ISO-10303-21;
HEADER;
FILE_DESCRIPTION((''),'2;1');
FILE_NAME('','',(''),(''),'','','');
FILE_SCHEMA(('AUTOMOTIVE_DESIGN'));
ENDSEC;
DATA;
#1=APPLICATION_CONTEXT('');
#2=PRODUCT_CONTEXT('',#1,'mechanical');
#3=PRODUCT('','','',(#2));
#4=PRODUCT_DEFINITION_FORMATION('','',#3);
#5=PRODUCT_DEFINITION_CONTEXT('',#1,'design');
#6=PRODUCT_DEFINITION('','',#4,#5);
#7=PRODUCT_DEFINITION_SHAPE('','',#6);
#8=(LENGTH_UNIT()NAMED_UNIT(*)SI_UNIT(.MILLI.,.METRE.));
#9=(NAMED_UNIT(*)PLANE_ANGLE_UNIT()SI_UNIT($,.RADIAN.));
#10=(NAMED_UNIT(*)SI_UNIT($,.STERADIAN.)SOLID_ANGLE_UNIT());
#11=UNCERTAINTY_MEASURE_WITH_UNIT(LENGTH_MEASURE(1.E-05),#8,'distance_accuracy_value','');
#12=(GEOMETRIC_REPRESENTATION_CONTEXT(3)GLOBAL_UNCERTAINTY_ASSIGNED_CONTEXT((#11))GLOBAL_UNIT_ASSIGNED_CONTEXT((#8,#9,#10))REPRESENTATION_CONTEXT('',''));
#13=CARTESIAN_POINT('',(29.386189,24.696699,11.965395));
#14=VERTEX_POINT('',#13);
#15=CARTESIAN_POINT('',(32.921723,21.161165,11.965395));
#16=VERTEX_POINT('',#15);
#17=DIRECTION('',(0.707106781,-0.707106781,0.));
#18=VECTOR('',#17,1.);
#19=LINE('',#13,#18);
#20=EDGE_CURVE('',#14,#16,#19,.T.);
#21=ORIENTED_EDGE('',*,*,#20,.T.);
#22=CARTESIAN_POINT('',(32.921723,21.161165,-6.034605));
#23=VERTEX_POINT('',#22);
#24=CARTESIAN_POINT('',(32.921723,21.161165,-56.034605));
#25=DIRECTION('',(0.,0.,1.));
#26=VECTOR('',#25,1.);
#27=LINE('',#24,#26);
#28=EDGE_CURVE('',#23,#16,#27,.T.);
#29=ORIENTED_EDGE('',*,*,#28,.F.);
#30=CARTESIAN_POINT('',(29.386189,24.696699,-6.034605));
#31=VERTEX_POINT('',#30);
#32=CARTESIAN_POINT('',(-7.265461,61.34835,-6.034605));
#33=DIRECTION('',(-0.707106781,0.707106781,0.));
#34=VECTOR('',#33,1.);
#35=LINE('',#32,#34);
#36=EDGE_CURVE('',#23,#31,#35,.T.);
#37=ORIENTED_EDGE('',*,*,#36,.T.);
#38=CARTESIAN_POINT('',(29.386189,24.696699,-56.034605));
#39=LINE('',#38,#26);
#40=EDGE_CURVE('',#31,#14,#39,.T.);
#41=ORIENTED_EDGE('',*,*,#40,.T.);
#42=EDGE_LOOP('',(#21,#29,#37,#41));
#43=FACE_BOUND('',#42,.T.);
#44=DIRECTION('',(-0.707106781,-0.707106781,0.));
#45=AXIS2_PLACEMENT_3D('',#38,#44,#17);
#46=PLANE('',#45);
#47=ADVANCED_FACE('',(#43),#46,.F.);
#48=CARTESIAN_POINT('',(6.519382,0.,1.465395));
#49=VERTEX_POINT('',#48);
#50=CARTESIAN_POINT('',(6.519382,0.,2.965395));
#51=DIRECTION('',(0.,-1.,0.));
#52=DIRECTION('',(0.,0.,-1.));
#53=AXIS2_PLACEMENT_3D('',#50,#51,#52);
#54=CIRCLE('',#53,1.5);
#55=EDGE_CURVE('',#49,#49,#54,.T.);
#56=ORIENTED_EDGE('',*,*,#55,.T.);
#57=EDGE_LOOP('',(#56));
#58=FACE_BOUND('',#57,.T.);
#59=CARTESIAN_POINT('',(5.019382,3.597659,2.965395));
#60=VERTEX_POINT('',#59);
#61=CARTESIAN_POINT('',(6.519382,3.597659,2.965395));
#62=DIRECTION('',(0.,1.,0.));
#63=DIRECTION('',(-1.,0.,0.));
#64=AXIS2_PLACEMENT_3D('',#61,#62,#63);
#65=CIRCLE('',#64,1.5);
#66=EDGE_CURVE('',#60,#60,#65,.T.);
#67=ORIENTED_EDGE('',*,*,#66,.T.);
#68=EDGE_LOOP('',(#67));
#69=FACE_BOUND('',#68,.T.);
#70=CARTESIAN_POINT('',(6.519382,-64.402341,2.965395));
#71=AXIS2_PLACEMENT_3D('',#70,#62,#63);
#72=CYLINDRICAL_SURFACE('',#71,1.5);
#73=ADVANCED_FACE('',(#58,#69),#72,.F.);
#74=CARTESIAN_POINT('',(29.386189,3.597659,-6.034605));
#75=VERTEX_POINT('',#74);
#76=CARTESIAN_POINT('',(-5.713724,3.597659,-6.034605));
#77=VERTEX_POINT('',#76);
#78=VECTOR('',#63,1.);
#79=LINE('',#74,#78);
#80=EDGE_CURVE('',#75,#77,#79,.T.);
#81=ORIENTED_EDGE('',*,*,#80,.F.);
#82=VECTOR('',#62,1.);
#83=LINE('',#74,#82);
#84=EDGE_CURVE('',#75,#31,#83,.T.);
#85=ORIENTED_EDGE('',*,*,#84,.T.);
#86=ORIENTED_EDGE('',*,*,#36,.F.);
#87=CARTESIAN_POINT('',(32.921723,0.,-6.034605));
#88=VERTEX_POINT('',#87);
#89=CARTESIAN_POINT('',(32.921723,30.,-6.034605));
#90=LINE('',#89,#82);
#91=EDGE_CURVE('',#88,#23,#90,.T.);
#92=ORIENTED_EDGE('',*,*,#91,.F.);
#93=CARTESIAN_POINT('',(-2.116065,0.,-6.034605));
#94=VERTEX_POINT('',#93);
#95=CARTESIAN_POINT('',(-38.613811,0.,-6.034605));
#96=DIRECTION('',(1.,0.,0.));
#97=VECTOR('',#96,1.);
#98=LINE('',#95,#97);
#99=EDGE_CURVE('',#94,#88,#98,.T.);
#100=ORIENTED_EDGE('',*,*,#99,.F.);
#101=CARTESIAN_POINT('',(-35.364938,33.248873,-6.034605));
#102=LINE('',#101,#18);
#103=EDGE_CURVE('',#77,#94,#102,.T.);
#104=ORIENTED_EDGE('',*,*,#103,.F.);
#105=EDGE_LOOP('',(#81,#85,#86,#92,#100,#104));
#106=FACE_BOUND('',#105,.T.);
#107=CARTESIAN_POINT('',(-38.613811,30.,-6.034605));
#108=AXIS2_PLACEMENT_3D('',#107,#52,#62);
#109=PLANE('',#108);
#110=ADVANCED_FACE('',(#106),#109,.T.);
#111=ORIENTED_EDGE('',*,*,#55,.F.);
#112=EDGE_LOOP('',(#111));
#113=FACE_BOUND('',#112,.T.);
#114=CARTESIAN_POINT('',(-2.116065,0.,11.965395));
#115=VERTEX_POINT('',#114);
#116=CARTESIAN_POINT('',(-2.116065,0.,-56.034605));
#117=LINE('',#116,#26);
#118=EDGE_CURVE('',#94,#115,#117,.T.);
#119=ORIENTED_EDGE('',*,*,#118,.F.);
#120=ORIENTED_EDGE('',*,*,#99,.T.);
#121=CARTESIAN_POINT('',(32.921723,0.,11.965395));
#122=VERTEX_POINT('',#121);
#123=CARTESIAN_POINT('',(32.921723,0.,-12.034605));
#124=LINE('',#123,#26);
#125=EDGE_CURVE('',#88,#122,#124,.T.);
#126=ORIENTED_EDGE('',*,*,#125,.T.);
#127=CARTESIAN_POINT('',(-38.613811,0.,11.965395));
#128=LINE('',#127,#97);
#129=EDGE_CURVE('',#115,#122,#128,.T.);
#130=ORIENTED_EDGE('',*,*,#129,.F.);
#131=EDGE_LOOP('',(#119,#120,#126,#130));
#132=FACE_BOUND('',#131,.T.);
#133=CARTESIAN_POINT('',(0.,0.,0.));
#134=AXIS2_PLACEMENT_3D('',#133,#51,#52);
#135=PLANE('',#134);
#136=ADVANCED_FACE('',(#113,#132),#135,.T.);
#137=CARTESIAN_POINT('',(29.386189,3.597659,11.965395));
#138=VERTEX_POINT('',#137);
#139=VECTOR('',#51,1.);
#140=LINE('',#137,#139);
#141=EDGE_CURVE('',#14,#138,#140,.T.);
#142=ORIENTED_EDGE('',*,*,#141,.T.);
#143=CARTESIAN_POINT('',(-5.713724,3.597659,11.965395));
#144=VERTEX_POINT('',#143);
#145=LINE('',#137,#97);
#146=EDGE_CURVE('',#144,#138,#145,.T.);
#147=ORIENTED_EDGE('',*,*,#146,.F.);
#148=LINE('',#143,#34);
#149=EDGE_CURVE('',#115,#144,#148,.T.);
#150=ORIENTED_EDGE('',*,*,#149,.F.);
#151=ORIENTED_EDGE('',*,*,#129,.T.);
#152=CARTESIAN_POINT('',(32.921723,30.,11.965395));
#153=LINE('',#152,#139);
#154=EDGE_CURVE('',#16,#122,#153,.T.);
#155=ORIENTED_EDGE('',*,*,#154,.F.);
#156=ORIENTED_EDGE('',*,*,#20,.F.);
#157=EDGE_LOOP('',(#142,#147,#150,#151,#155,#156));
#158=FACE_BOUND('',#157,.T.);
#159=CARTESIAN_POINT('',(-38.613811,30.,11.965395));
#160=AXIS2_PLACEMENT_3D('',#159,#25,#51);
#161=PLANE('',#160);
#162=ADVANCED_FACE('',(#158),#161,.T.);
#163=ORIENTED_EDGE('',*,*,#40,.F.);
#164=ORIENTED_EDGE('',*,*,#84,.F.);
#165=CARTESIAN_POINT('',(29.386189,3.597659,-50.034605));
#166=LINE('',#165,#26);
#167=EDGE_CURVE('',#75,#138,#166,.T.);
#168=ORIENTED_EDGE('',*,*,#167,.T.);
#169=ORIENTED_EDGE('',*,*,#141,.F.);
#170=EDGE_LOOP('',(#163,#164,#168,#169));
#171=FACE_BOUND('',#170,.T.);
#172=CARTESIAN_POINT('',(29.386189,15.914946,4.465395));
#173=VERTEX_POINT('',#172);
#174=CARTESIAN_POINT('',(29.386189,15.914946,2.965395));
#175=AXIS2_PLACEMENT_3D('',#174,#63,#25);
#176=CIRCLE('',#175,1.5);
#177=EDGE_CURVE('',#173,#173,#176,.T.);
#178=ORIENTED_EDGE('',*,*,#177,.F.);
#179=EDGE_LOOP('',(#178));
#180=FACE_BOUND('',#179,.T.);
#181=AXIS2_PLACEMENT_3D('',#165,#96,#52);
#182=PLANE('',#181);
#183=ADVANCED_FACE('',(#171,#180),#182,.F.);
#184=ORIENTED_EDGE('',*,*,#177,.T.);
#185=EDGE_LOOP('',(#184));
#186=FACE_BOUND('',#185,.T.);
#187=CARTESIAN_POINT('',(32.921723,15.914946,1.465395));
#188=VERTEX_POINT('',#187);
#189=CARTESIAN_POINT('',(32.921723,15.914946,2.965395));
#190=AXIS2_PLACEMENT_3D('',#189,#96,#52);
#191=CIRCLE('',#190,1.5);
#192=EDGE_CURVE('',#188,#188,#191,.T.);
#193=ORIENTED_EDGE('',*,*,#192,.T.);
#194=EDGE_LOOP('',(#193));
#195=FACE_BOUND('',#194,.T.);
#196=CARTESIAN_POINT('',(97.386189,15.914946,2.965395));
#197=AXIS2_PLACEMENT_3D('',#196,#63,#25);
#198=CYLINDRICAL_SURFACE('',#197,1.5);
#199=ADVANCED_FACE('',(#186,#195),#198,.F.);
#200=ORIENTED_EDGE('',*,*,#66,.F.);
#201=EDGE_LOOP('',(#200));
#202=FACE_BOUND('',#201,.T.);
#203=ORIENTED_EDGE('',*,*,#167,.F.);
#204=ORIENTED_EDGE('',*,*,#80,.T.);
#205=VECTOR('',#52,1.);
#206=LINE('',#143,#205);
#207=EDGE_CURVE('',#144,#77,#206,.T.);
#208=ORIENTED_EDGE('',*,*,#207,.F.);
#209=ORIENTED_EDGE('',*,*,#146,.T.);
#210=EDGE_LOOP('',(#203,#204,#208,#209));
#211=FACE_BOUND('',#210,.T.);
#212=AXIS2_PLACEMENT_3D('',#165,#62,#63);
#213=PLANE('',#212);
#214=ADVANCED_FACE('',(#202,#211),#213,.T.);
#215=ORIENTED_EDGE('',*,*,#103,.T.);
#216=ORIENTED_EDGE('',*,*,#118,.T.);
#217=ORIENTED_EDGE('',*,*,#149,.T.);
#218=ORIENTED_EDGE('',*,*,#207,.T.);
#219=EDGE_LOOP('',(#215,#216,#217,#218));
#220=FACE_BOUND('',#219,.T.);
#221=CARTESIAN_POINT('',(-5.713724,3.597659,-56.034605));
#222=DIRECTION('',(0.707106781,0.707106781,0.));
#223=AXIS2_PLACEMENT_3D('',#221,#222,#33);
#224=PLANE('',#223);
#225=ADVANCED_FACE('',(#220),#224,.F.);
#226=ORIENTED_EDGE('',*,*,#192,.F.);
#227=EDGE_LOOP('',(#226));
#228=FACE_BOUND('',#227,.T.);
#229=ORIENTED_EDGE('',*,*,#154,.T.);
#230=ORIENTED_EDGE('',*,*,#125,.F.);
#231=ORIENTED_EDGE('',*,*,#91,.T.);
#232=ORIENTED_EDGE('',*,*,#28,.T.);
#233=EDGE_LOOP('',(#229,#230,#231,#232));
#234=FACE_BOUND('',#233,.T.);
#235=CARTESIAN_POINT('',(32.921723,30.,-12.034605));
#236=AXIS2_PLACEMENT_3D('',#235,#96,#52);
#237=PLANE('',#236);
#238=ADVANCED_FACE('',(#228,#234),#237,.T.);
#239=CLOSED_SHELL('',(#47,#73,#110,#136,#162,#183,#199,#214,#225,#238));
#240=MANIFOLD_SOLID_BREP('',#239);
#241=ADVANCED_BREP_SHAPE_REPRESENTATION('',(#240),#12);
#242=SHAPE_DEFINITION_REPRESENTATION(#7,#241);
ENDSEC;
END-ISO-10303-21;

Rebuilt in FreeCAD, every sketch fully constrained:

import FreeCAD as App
import Part
import Sketcher
from FreeCAD import Vector
Q = App.Units.Quantity

doc = App.newDocument("Part")
params = doc.addObject("Spreadsheet::Sheet", "Params")
for row, (alias, value) in enumerate([
    ("sketch1_width", "60 mm"),
    ("sketch1_height", "30 mm"),
    ("pad1_length", "30 mm"),
    ("sketch2_width", "60 mm"),
    ("sketch2_height", "30 mm"),
    ("pocket1_length", "30 mm"),
    ("pocket2_length", "68 mm"),
    ("sketch4_diameter", "3 mm"),
    ("pocket3_length", "68 mm"),
    ("sketch5_width", "30 mm"),
    ("sketch5_height", "6 mm"),
    ("sketch6_diameter", "3 mm"),
    ("pocket5_length", "68 mm"),
    ("sketch7_height", "18 mm"),
    ("pocket6_length", "68 mm"),
    ("pocket7_length", "68 mm"),
    ("sketch9_length", "5 mm"),
    ("pocket8_length", "68 mm"),
    ("sketch10_length", "5 mm"),
    ("pocket9_length", "68 mm"),
    ("sketch11_length", "5 mm"),
    ("pocket10_length", "68 mm"),
], start=1):
    params.set(f"A{row}", alias)
    params.set(f"B{row}", "=" + value)
    params.setAlias(f"B{row}", alias)

body = doc.addObject("PartDesign::Body", "Body")
body.AllowCompound = True

sketch1 = body.newObject("Sketcher::SketchObject", "Sketch")
sketch1.AttachmentSupport = (doc.getObject("XZ_Plane"), [""])
sketch1.MapMode = "FlatFace"
sketch1.addGeometry([
    Part.LineSegment(Vector(-27, -12, 0), Vector(-27, 18, 0)),
    Part.LineSegment(Vector(-27, 18, 0), Vector(33, 18, 0)),
    Part.LineSegment(Vector(33, 18, 0), Vector(33, -12, 0)),
    Part.LineSegment(Vector(33, -12, 0), Vector(-27, -12, 0)),
], False)
sketch1.addConstraint([
    Sketcher.Constraint("Coincident", 0, 2, 1, 1),
    Sketcher.Constraint("Coincident", 1, 2, 2, 1),
    Sketcher.Constraint("Coincident", 2, 2, 3, 1),
    Sketcher.Constraint("Coincident", 3, 2, 0, 1),
    Sketcher.Constraint("Vertical", 0),
    Sketcher.Constraint("Horizontal", 1),
    Sketcher.Constraint("Vertical", 2),
    Sketcher.Constraint("Horizontal", 3),
    Sketcher.Constraint("DistanceX", 1, 1, 1, 2, Q("60 mm")),
    Sketcher.Constraint("DistanceY", 0, 1, 0, 2, Q("30 mm")),
    Sketcher.Constraint("DistanceX", 0, 2, -1, 1, Q("27.078277 mm")),
    Sketcher.Constraint("DistanceY", -1, 1, 0, 2, Q("17.965395 mm")),
])
sketch1.setExpression("Constraints[8]", "Params.sketch1_width")
sketch1.setExpression("Constraints[9]", "Params.sketch1_height")
pad1 = body.newObject("PartDesign::Pad", "Pad")
pad1.Profile = sketch1
pad1.setExpression("Length", "Params.pad1_length")
pad1.Reversed = True

sketch2 = body.newObject("Sketcher::SketchObject", "Sketch001")
sketch2.AttachmentSupport = (doc.getObject("XY_Plane"), [""])
sketch2.MapMode = "FlatFace"
sketch2.AttachmentOffset = App.Placement(Vector(0, 0, 17.965395), App.Rotation())
sketch2.addGeometry([
    Part.LineSegment(Vector(-27, 0, 0), Vector(33, 30, 0)),
    Part.LineSegment(Vector(33, 30, 0), Vector(-27, 30, 0)),
    Part.LineSegment(Vector(-27, 30, 0), Vector(-27, 0, 0)),
], False)
sketch2.addConstraint([
    Sketcher.Constraint("Coincident", 0, 2, 1, 1),
    Sketcher.Constraint("Coincident", 1, 2, 2, 1),
    Sketcher.Constraint("Coincident", 2, 2, 0, 1),
    Sketcher.Constraint("Horizontal", 1),
    Sketcher.Constraint("Vertical", 2),
    Sketcher.Constraint("PointOnObject", 2, 2, -1),
    Sketcher.Constraint("DistanceX", 1, 2, 1, 1, Q("60 mm")),
    Sketcher.Constraint("DistanceY", 2, 2, 2, 1, Q("30 mm")),
    Sketcher.Constraint("DistanceX", -1, 1, 0, 2, Q("32.921723 mm")),
])
sketch2.setExpression("Constraints[6]", "Params.sketch2_width")
sketch2.setExpression("Constraints[7]", "Params.sketch2_height")
pocket1 = body.newObject("PartDesign::Pocket", "Pocket")
pocket1.Profile = sketch2
pocket1.setExpression("Length", "Params.pocket1_length")

sketch3 = body.newObject("Sketcher::SketchObject", "Sketch002")
sketch3.AttachmentSupport = (doc.getObject("XY_Plane"), [""])
sketch3.MapMode = "FlatFace"
sketch3.AttachmentOffset = App.Placement(Vector(0, 0, 17.965395), App.Rotation())
sketch3.addGeometry([
    Part.LineSegment(Vector(-31, 35, 0), Vector(-31, 4, 0)),
    Part.LineSegment(Vector(-31, 4, 0), Vector(29, 4, 0)),
    Part.LineSegment(Vector(29, 4, 0), Vector(29, 35, 0)),
    Part.LineSegment(Vector(29, 35, 0), Vector(-31, 35, 0)),
], False)
sketch3.addConstraint([
    Sketcher.Constraint("Coincident", 0, 2, 1, 1),
    Sketcher.Constraint("Coincident", 1, 2, 2, 1),
    Sketcher.Constraint("Coincident", 2, 2, 3, 1),
    Sketcher.Constraint("Coincident", 3, 2, 0, 1),
    Sketcher.Constraint("Vertical", 0),
    Sketcher.Constraint("Horizontal", 1),
    Sketcher.Constraint("Vertical", 2),
    Sketcher.Constraint("Horizontal", 3),
    Sketcher.Constraint("DistanceY", 0, 2, 0, 1, Q("31.04598 mm")),
    Sketcher.Constraint("DistanceX", 1, 1, 1, 2, Q("60.882004 mm")),
    Sketcher.Constraint("DistanceY", -1, 1, 0, 2, Q("3.597659 mm")),
    Sketcher.Constraint("DistanceX", -1, 1, 1, 2, Q("29.386189 mm")),
])
pocket2 = body.newObject("PartDesign::Pocket", "Pocket001")
pocket2.Profile = sketch3
pocket2.setExpression("Length", "Params.pocket2_length")

sketch4 = body.newObject("Sketcher::SketchObject", "Sketch003")
sketch4.AttachmentSupport = (doc.getObject("YZ_Plane"), [""])
sketch4.MapMode = "FlatFace"
sketch4.AttachmentOffset = App.Placement(Vector(0, 0, 29.386189), App.Rotation())
sketch4.addGeometry(Part.Circle(Vector(15.9, 3, 0), Vector(0, 0, 1), 1.5), False)
sketch4.addConstraint([
    Sketcher.Constraint("Diameter", 0, Q("3 mm")),
    Sketcher.Constraint("DistanceX", -1, 1, 0, 3, Q("15.914946 mm")),
    Sketcher.Constraint("DistanceY", -1, 1, 0, 3, Q("2.965395 mm")),
])
sketch4.setExpression("Constraints[0]", "Params.sketch4_diameter")
pocket3 = body.newObject("PartDesign::Pocket", "Pocket002")
pocket3.Profile = sketch4
pocket3.setExpression("Length", "Params.pocket3_length")
pocket3.Reversed = True

sketch5 = body.newObject("Sketcher::SketchObject", "Sketch004")
sketch5.AttachmentSupport = (doc.getObject("YZ_Plane"), [""])
sketch5.MapMode = "FlatFace"
sketch5.AttachmentOffset = App.Placement(Vector(0, 0, 29.386189), App.Rotation())
sketch5.addGeometry([
    Part.LineSegment(Vector(30, -12, 0), Vector(0, -12, 0)),
    Part.LineSegment(Vector(0, -12, 0), Vector(0, -6, 0)),
    Part.LineSegment(Vector(0, -6, 0), Vector(30, -6, 0)),
    Part.LineSegment(Vector(30, -6, 0), Vector(30, -12, 0)),
    Part.LineSegment(Vector(30, 12, 0), Vector(0, 12, 0)),
    Part.LineSegment(Vector(0, 12, 0), Vector(0, 18, 0)),
    Part.LineSegment(Vector(0, 18, 0), Vector(30, 18, 0)),
    Part.LineSegment(Vector(30, 18, 0), Vector(30, 12, 0)),
], False)
sketch5.addConstraint([
    Sketcher.Constraint("Coincident", 0, 2, 1, 1),
    Sketcher.Constraint("Coincident", 1, 2, 2, 1),
    Sketcher.Constraint("Coincident", 2, 2, 3, 1),
    Sketcher.Constraint("Coincident", 3, 2, 0, 1),
    Sketcher.Constraint("Coincident", 4, 2, 5, 1),
    Sketcher.Constraint("Coincident", 5, 2, 6, 1),
    Sketcher.Constraint("Coincident", 6, 2, 7, 1),
    Sketcher.Constraint("Coincident", 7, 2, 4, 1),
    Sketcher.Constraint("Horizontal", 0),
    Sketcher.Constraint("Vertical", 1),
    Sketcher.Constraint("Horizontal", 2),
    Sketcher.Constraint("Vertical", 3),
    Sketcher.Constraint("Horizontal", 4),
    Sketcher.Constraint("Vertical", 5),
    Sketcher.Constraint("Horizontal", 6),
    Sketcher.Constraint("Vertical", 7),
    Sketcher.Constraint("PointOnObject", 0, 2, -2),
    Sketcher.Constraint("PointOnObject", 4, 2, -2),
    Sketcher.Constraint("Vertical", 3, 2, 6, 2),
    Sketcher.Constraint("Equal", 3, 5),
    Sketcher.Constraint("DistanceX", 0, 2, 0, 1, Q("30 mm")),
    Sketcher.Constraint("DistanceY", 1, 1, 1, 2, Q("6 mm")),
    Sketcher.Constraint("DistanceY", 1, 2, 4, 2, Q("18 mm")),
    Sketcher.Constraint("DistanceY", 0, 2, -1, 1, Q("12.034605 mm")),
])
sketch5.setExpression("Constraints[20]", "Params.sketch5_width")
sketch5.setExpression("Constraints[21]", "Params.sketch5_height")
pocket4 = body.newObject("PartDesign::Pocket", "Pocket003")
pocket4.Profile = sketch5
pocket4.Type = "ThroughAll"
pocket4.Midplane = True

sketch6 = body.newObject("Sketcher::SketchObject", "Sketch005")
sketch6.AttachmentSupport = (doc.getObject("XZ_Plane"), [""])
sketch6.MapMode = "FlatFace"
sketch6.AttachmentOffset = App.Placement(Vector(0, 0, -3.597659), App.Rotation())
sketch6.addGeometry(Part.Circle(Vector(6.5, 3, 0), Vector(0, 0, 1), 1.5), False)
sketch6.addConstraint([
    Sketcher.Constraint("Diameter", 0, Q("3 mm")),
    Sketcher.Constraint("DistanceX", -1, 1, 0, 3, Q("6.519382 mm")),
    Sketcher.Constraint("DistanceY", -1, 1, 0, 3, Q("2.965395 mm")),
])
sketch6.setExpression("Constraints[0]", "Params.sketch6_diameter")
pocket5 = body.newObject("PartDesign::Pocket", "Pocket004")
pocket5.Profile = sketch6
pocket5.setExpression("Length", "Params.pocket5_length")
pocket5.Reversed = True

sketch7 = body.newObject("Sketcher::SketchObject", "Sketch006")
sketch7.AttachmentSupport = (doc.getObject("XZ_Plane"), [""])
sketch7.MapMode = "FlatFace"
sketch7.AttachmentOffset = App.Placement(Vector(0, 0, -3.597659), App.Rotation())
sketch7.addGeometry([
    Part.LineSegment(Vector(-27, -6, 0), Vector(-27, 12, 0)),
    Part.LineSegment(Vector(-27, 12, 0), Vector(-6, 12, 0)),
    Part.LineSegment(Vector(-6, 12, 0), Vector(-6, -6, 0)),
    Part.LineSegment(Vector(-6, -6, 0), Vector(-27, -6, 0)),
], False)
sketch7.addConstraint([
    Sketcher.Constraint("Coincident", 0, 2, 1, 1),
    Sketcher.Constraint("Coincident", 1, 2, 2, 1),
    Sketcher.Constraint("Coincident", 2, 2, 3, 1),
    Sketcher.Constraint("Coincident", 3, 2, 0, 1),
    Sketcher.Constraint("Vertical", 0),
    Sketcher.Constraint("Horizontal", 1),
    Sketcher.Constraint("Vertical", 2),
    Sketcher.Constraint("Horizontal", 3),
    Sketcher.Constraint("DistanceY", 0, 1, 0, 2, Q("18 mm")),
    Sketcher.Constraint("DistanceX", 1, 1, 1, 2, Q("21.364553 mm")),
    Sketcher.Constraint("DistanceX", 0, 2, -1, 1, Q("27.078277 mm")),
    Sketcher.Constraint("DistanceY", -1, 1, 0, 2, Q("11.965395 mm")),
])
sketch7.setExpression("Constraints[8]", "Params.sketch7_height")
pocket6 = body.newObject("PartDesign::Pocket", "Pocket005")
pocket6.Profile = sketch7
pocket6.setExpression("Length", "Params.pocket6_length")
pocket6.Reversed = True

sketch8 = body.newObject("Sketcher::SketchObject", "Sketch007")
sketch8.AttachmentSupport = (doc.getObject("XY_Plane"), [""])
sketch8.MapMode = "FlatFace"
sketch8.AttachmentOffset = App.Placement(Vector(0, 0, 11.965395), App.Rotation())
sketch8.addGeometry([
    Part.LineSegment(Vector(-2.1, 0, 0), Vector(-5.7, 3.6, 0)),
    Part.LineSegment(Vector(-5.7, 3.6, 0), Vector(-5.7, 0, 0)),
    Part.LineSegment(Vector(-5.7, 0, 0), Vector(-2.1, 0, 0)),
], False)
sketch8.addConstraint([
    Sketcher.Constraint("Coincident", 0, 2, 1, 1),
    Sketcher.Constraint("Coincident", 1, 2, 2, 1),
    Sketcher.Constraint("Coincident", 2, 2, 0, 1),
    Sketcher.Constraint("Vertical", 1),
    Sketcher.Constraint("Horizontal", 2),
    Sketcher.Constraint("PointOnObject", 1, 2, -1),
    Sketcher.Constraint("Equal", 2, 1),
    Sketcher.Constraint("DistanceX", 2, 1, 2, 2, Q("3.597659 mm")),
    Sketcher.Constraint("DistanceX", 0, 2, -1, 1, Q("5.713724 mm")),
])
pocket7 = body.newObject("PartDesign::Pocket", "Pocket006")
pocket7.Profile = sketch8
pocket7.setExpression("Length", "Params.pocket7_length")

sketch9 = body.newObject("Sketcher::SketchObject", "Sketch008")
sketch9.AttachmentSupport = (doc.getObject("XY_Plane"), [""])
sketch9.MapMode = "FlatFace"
sketch9.AttachmentOffset = App.Placement(Vector(0, 0, 11.965395), App.Rotation())
sketch9.addGeometry([
    Part.LineSegment(Vector(32.9, 24.7, 0), Vector(29.4, 28.2, 0)),
    Part.LineSegment(Vector(29.4, 28.2, 0), Vector(29.4, 24.7, 0)),
    Part.LineSegment(Vector(29.4, 24.7, 0), Vector(32.9, 24.7, 0)),
], False)
sketch9.addConstraint([
    Sketcher.Constraint("Coincident", 0, 2, 1, 1),
    Sketcher.Constraint("Coincident", 1, 2, 2, 1),
    Sketcher.Constraint("Coincident", 2, 2, 0, 1),
    Sketcher.Constraint("Vertical", 1),
    Sketcher.Constraint("Horizontal", 2),
    Sketcher.Constraint("Equal", 2, 1),
    Sketcher.Constraint("Distance", 0, Q("5 mm")),
    Sketcher.Constraint("DistanceY", -1, 1, 1, 2, Q("24.696699 mm")),
    Sketcher.Constraint("DistanceX", -1, 1, 0, 2, Q("29.386189 mm")),
])
sketch9.setExpression("Constraints[6]", "Params.sketch9_length")
pocket8 = body.newObject("PartDesign::Pocket", "Pocket007")
pocket8.Profile = sketch9
pocket8.setExpression("Length", "Params.pocket8_length")

sketch10 = body.newObject("Sketcher::SketchObject", "Sketch009")
sketch10.AttachmentSupport = (doc.getObject("XY_Plane"), [""])
sketch10.MapMode = "FlatFace"
sketch10.AttachmentOffset = App.Placement(Vector(0, 0, 11.965395), App.Rotation())
sketch10.addGeometry([
    Part.LineSegment(Vector(32.9, 30, 0), Vector(29.4, 28.2, 0)),
    Part.LineSegment(Vector(29.4, 28.2, 0), Vector(32.9, 24.7, 0)),
    Part.LineSegment(Vector(32.9, 24.7, 0), Vector(32.9, 30, 0)),
], False)
sketch10.addConstraint([
    Sketcher.Constraint("Coincident", 0, 2, 1, 1),
    Sketcher.Constraint("Coincident", 1, 2, 2, 1),
    Sketcher.Constraint("Coincident", 2, 2, 0, 1),
    Sketcher.Constraint("Vertical", 2),
    Sketcher.Constraint("Angle", 1, Q("-45 deg")),
    Sketcher.Constraint("Distance", 1, Q("5 mm")),
    Sketcher.Constraint("DistanceY", -1, 1, 2, 2, Q("30 mm")),
    Sketcher.Constraint("DistanceY", 2, 1, 2, 2, Q("5.303301 mm")),
    Sketcher.Constraint("DistanceX", -1, 1, 0, 2, Q("29.386189 mm")),
])
sketch10.setExpression("Constraints[5]", "Params.sketch10_length")
pocket9 = body.newObject("PartDesign::Pocket", "Pocket008")
pocket9.Profile = sketch10
pocket9.setExpression("Length", "Params.pocket9_length")

sketch11 = body.newObject("Sketcher::SketchObject", "Sketch010")
sketch11.AttachmentSupport = (doc.getObject("XY_Plane"), [""])
sketch11.MapMode = "FlatFace"
sketch11.AttachmentOffset = App.Placement(Vector(0, 0, 11.965395), App.Rotation())
sketch11.addGeometry([
    Part.LineSegment(Vector(29.4, 24.7, 0), Vector(32.9, 21.2, 0)),
    Part.LineSegment(Vector(32.9, 21.2, 0), Vector(32.9, 24.7, 0)),
    Part.LineSegment(Vector(32.9, 24.7, 0), Vector(29.4, 24.7, 0)),
], False)
sketch11.addConstraint([
    Sketcher.Constraint("Coincident", 0, 2, 1, 1),
    Sketcher.Constraint("Coincident", 1, 2, 2, 1),
    Sketcher.Constraint("Coincident", 2, 2, 0, 1),
    Sketcher.Constraint("Vertical", 1),
    Sketcher.Constraint("Horizontal", 2),
    Sketcher.Constraint("Equal", 2, 1),
    Sketcher.Constraint("Distance", 0, Q("5 mm")),
    Sketcher.Constraint("DistanceY", -1, 1, 1, 2, Q("24.696699 mm")),
    Sketcher.Constraint("DistanceX", -1, 1, 2, 2, Q("29.386189 mm")),
])
sketch11.setExpression("Constraints[6]", "Params.sketch11_length")
pocket10 = body.newObject("PartDesign::Pocket", "Pocket009")
pocket10.Profile = sketch11
pocket10.setExpression("Length", "Params.pocket10_length")

doc.recompute()
